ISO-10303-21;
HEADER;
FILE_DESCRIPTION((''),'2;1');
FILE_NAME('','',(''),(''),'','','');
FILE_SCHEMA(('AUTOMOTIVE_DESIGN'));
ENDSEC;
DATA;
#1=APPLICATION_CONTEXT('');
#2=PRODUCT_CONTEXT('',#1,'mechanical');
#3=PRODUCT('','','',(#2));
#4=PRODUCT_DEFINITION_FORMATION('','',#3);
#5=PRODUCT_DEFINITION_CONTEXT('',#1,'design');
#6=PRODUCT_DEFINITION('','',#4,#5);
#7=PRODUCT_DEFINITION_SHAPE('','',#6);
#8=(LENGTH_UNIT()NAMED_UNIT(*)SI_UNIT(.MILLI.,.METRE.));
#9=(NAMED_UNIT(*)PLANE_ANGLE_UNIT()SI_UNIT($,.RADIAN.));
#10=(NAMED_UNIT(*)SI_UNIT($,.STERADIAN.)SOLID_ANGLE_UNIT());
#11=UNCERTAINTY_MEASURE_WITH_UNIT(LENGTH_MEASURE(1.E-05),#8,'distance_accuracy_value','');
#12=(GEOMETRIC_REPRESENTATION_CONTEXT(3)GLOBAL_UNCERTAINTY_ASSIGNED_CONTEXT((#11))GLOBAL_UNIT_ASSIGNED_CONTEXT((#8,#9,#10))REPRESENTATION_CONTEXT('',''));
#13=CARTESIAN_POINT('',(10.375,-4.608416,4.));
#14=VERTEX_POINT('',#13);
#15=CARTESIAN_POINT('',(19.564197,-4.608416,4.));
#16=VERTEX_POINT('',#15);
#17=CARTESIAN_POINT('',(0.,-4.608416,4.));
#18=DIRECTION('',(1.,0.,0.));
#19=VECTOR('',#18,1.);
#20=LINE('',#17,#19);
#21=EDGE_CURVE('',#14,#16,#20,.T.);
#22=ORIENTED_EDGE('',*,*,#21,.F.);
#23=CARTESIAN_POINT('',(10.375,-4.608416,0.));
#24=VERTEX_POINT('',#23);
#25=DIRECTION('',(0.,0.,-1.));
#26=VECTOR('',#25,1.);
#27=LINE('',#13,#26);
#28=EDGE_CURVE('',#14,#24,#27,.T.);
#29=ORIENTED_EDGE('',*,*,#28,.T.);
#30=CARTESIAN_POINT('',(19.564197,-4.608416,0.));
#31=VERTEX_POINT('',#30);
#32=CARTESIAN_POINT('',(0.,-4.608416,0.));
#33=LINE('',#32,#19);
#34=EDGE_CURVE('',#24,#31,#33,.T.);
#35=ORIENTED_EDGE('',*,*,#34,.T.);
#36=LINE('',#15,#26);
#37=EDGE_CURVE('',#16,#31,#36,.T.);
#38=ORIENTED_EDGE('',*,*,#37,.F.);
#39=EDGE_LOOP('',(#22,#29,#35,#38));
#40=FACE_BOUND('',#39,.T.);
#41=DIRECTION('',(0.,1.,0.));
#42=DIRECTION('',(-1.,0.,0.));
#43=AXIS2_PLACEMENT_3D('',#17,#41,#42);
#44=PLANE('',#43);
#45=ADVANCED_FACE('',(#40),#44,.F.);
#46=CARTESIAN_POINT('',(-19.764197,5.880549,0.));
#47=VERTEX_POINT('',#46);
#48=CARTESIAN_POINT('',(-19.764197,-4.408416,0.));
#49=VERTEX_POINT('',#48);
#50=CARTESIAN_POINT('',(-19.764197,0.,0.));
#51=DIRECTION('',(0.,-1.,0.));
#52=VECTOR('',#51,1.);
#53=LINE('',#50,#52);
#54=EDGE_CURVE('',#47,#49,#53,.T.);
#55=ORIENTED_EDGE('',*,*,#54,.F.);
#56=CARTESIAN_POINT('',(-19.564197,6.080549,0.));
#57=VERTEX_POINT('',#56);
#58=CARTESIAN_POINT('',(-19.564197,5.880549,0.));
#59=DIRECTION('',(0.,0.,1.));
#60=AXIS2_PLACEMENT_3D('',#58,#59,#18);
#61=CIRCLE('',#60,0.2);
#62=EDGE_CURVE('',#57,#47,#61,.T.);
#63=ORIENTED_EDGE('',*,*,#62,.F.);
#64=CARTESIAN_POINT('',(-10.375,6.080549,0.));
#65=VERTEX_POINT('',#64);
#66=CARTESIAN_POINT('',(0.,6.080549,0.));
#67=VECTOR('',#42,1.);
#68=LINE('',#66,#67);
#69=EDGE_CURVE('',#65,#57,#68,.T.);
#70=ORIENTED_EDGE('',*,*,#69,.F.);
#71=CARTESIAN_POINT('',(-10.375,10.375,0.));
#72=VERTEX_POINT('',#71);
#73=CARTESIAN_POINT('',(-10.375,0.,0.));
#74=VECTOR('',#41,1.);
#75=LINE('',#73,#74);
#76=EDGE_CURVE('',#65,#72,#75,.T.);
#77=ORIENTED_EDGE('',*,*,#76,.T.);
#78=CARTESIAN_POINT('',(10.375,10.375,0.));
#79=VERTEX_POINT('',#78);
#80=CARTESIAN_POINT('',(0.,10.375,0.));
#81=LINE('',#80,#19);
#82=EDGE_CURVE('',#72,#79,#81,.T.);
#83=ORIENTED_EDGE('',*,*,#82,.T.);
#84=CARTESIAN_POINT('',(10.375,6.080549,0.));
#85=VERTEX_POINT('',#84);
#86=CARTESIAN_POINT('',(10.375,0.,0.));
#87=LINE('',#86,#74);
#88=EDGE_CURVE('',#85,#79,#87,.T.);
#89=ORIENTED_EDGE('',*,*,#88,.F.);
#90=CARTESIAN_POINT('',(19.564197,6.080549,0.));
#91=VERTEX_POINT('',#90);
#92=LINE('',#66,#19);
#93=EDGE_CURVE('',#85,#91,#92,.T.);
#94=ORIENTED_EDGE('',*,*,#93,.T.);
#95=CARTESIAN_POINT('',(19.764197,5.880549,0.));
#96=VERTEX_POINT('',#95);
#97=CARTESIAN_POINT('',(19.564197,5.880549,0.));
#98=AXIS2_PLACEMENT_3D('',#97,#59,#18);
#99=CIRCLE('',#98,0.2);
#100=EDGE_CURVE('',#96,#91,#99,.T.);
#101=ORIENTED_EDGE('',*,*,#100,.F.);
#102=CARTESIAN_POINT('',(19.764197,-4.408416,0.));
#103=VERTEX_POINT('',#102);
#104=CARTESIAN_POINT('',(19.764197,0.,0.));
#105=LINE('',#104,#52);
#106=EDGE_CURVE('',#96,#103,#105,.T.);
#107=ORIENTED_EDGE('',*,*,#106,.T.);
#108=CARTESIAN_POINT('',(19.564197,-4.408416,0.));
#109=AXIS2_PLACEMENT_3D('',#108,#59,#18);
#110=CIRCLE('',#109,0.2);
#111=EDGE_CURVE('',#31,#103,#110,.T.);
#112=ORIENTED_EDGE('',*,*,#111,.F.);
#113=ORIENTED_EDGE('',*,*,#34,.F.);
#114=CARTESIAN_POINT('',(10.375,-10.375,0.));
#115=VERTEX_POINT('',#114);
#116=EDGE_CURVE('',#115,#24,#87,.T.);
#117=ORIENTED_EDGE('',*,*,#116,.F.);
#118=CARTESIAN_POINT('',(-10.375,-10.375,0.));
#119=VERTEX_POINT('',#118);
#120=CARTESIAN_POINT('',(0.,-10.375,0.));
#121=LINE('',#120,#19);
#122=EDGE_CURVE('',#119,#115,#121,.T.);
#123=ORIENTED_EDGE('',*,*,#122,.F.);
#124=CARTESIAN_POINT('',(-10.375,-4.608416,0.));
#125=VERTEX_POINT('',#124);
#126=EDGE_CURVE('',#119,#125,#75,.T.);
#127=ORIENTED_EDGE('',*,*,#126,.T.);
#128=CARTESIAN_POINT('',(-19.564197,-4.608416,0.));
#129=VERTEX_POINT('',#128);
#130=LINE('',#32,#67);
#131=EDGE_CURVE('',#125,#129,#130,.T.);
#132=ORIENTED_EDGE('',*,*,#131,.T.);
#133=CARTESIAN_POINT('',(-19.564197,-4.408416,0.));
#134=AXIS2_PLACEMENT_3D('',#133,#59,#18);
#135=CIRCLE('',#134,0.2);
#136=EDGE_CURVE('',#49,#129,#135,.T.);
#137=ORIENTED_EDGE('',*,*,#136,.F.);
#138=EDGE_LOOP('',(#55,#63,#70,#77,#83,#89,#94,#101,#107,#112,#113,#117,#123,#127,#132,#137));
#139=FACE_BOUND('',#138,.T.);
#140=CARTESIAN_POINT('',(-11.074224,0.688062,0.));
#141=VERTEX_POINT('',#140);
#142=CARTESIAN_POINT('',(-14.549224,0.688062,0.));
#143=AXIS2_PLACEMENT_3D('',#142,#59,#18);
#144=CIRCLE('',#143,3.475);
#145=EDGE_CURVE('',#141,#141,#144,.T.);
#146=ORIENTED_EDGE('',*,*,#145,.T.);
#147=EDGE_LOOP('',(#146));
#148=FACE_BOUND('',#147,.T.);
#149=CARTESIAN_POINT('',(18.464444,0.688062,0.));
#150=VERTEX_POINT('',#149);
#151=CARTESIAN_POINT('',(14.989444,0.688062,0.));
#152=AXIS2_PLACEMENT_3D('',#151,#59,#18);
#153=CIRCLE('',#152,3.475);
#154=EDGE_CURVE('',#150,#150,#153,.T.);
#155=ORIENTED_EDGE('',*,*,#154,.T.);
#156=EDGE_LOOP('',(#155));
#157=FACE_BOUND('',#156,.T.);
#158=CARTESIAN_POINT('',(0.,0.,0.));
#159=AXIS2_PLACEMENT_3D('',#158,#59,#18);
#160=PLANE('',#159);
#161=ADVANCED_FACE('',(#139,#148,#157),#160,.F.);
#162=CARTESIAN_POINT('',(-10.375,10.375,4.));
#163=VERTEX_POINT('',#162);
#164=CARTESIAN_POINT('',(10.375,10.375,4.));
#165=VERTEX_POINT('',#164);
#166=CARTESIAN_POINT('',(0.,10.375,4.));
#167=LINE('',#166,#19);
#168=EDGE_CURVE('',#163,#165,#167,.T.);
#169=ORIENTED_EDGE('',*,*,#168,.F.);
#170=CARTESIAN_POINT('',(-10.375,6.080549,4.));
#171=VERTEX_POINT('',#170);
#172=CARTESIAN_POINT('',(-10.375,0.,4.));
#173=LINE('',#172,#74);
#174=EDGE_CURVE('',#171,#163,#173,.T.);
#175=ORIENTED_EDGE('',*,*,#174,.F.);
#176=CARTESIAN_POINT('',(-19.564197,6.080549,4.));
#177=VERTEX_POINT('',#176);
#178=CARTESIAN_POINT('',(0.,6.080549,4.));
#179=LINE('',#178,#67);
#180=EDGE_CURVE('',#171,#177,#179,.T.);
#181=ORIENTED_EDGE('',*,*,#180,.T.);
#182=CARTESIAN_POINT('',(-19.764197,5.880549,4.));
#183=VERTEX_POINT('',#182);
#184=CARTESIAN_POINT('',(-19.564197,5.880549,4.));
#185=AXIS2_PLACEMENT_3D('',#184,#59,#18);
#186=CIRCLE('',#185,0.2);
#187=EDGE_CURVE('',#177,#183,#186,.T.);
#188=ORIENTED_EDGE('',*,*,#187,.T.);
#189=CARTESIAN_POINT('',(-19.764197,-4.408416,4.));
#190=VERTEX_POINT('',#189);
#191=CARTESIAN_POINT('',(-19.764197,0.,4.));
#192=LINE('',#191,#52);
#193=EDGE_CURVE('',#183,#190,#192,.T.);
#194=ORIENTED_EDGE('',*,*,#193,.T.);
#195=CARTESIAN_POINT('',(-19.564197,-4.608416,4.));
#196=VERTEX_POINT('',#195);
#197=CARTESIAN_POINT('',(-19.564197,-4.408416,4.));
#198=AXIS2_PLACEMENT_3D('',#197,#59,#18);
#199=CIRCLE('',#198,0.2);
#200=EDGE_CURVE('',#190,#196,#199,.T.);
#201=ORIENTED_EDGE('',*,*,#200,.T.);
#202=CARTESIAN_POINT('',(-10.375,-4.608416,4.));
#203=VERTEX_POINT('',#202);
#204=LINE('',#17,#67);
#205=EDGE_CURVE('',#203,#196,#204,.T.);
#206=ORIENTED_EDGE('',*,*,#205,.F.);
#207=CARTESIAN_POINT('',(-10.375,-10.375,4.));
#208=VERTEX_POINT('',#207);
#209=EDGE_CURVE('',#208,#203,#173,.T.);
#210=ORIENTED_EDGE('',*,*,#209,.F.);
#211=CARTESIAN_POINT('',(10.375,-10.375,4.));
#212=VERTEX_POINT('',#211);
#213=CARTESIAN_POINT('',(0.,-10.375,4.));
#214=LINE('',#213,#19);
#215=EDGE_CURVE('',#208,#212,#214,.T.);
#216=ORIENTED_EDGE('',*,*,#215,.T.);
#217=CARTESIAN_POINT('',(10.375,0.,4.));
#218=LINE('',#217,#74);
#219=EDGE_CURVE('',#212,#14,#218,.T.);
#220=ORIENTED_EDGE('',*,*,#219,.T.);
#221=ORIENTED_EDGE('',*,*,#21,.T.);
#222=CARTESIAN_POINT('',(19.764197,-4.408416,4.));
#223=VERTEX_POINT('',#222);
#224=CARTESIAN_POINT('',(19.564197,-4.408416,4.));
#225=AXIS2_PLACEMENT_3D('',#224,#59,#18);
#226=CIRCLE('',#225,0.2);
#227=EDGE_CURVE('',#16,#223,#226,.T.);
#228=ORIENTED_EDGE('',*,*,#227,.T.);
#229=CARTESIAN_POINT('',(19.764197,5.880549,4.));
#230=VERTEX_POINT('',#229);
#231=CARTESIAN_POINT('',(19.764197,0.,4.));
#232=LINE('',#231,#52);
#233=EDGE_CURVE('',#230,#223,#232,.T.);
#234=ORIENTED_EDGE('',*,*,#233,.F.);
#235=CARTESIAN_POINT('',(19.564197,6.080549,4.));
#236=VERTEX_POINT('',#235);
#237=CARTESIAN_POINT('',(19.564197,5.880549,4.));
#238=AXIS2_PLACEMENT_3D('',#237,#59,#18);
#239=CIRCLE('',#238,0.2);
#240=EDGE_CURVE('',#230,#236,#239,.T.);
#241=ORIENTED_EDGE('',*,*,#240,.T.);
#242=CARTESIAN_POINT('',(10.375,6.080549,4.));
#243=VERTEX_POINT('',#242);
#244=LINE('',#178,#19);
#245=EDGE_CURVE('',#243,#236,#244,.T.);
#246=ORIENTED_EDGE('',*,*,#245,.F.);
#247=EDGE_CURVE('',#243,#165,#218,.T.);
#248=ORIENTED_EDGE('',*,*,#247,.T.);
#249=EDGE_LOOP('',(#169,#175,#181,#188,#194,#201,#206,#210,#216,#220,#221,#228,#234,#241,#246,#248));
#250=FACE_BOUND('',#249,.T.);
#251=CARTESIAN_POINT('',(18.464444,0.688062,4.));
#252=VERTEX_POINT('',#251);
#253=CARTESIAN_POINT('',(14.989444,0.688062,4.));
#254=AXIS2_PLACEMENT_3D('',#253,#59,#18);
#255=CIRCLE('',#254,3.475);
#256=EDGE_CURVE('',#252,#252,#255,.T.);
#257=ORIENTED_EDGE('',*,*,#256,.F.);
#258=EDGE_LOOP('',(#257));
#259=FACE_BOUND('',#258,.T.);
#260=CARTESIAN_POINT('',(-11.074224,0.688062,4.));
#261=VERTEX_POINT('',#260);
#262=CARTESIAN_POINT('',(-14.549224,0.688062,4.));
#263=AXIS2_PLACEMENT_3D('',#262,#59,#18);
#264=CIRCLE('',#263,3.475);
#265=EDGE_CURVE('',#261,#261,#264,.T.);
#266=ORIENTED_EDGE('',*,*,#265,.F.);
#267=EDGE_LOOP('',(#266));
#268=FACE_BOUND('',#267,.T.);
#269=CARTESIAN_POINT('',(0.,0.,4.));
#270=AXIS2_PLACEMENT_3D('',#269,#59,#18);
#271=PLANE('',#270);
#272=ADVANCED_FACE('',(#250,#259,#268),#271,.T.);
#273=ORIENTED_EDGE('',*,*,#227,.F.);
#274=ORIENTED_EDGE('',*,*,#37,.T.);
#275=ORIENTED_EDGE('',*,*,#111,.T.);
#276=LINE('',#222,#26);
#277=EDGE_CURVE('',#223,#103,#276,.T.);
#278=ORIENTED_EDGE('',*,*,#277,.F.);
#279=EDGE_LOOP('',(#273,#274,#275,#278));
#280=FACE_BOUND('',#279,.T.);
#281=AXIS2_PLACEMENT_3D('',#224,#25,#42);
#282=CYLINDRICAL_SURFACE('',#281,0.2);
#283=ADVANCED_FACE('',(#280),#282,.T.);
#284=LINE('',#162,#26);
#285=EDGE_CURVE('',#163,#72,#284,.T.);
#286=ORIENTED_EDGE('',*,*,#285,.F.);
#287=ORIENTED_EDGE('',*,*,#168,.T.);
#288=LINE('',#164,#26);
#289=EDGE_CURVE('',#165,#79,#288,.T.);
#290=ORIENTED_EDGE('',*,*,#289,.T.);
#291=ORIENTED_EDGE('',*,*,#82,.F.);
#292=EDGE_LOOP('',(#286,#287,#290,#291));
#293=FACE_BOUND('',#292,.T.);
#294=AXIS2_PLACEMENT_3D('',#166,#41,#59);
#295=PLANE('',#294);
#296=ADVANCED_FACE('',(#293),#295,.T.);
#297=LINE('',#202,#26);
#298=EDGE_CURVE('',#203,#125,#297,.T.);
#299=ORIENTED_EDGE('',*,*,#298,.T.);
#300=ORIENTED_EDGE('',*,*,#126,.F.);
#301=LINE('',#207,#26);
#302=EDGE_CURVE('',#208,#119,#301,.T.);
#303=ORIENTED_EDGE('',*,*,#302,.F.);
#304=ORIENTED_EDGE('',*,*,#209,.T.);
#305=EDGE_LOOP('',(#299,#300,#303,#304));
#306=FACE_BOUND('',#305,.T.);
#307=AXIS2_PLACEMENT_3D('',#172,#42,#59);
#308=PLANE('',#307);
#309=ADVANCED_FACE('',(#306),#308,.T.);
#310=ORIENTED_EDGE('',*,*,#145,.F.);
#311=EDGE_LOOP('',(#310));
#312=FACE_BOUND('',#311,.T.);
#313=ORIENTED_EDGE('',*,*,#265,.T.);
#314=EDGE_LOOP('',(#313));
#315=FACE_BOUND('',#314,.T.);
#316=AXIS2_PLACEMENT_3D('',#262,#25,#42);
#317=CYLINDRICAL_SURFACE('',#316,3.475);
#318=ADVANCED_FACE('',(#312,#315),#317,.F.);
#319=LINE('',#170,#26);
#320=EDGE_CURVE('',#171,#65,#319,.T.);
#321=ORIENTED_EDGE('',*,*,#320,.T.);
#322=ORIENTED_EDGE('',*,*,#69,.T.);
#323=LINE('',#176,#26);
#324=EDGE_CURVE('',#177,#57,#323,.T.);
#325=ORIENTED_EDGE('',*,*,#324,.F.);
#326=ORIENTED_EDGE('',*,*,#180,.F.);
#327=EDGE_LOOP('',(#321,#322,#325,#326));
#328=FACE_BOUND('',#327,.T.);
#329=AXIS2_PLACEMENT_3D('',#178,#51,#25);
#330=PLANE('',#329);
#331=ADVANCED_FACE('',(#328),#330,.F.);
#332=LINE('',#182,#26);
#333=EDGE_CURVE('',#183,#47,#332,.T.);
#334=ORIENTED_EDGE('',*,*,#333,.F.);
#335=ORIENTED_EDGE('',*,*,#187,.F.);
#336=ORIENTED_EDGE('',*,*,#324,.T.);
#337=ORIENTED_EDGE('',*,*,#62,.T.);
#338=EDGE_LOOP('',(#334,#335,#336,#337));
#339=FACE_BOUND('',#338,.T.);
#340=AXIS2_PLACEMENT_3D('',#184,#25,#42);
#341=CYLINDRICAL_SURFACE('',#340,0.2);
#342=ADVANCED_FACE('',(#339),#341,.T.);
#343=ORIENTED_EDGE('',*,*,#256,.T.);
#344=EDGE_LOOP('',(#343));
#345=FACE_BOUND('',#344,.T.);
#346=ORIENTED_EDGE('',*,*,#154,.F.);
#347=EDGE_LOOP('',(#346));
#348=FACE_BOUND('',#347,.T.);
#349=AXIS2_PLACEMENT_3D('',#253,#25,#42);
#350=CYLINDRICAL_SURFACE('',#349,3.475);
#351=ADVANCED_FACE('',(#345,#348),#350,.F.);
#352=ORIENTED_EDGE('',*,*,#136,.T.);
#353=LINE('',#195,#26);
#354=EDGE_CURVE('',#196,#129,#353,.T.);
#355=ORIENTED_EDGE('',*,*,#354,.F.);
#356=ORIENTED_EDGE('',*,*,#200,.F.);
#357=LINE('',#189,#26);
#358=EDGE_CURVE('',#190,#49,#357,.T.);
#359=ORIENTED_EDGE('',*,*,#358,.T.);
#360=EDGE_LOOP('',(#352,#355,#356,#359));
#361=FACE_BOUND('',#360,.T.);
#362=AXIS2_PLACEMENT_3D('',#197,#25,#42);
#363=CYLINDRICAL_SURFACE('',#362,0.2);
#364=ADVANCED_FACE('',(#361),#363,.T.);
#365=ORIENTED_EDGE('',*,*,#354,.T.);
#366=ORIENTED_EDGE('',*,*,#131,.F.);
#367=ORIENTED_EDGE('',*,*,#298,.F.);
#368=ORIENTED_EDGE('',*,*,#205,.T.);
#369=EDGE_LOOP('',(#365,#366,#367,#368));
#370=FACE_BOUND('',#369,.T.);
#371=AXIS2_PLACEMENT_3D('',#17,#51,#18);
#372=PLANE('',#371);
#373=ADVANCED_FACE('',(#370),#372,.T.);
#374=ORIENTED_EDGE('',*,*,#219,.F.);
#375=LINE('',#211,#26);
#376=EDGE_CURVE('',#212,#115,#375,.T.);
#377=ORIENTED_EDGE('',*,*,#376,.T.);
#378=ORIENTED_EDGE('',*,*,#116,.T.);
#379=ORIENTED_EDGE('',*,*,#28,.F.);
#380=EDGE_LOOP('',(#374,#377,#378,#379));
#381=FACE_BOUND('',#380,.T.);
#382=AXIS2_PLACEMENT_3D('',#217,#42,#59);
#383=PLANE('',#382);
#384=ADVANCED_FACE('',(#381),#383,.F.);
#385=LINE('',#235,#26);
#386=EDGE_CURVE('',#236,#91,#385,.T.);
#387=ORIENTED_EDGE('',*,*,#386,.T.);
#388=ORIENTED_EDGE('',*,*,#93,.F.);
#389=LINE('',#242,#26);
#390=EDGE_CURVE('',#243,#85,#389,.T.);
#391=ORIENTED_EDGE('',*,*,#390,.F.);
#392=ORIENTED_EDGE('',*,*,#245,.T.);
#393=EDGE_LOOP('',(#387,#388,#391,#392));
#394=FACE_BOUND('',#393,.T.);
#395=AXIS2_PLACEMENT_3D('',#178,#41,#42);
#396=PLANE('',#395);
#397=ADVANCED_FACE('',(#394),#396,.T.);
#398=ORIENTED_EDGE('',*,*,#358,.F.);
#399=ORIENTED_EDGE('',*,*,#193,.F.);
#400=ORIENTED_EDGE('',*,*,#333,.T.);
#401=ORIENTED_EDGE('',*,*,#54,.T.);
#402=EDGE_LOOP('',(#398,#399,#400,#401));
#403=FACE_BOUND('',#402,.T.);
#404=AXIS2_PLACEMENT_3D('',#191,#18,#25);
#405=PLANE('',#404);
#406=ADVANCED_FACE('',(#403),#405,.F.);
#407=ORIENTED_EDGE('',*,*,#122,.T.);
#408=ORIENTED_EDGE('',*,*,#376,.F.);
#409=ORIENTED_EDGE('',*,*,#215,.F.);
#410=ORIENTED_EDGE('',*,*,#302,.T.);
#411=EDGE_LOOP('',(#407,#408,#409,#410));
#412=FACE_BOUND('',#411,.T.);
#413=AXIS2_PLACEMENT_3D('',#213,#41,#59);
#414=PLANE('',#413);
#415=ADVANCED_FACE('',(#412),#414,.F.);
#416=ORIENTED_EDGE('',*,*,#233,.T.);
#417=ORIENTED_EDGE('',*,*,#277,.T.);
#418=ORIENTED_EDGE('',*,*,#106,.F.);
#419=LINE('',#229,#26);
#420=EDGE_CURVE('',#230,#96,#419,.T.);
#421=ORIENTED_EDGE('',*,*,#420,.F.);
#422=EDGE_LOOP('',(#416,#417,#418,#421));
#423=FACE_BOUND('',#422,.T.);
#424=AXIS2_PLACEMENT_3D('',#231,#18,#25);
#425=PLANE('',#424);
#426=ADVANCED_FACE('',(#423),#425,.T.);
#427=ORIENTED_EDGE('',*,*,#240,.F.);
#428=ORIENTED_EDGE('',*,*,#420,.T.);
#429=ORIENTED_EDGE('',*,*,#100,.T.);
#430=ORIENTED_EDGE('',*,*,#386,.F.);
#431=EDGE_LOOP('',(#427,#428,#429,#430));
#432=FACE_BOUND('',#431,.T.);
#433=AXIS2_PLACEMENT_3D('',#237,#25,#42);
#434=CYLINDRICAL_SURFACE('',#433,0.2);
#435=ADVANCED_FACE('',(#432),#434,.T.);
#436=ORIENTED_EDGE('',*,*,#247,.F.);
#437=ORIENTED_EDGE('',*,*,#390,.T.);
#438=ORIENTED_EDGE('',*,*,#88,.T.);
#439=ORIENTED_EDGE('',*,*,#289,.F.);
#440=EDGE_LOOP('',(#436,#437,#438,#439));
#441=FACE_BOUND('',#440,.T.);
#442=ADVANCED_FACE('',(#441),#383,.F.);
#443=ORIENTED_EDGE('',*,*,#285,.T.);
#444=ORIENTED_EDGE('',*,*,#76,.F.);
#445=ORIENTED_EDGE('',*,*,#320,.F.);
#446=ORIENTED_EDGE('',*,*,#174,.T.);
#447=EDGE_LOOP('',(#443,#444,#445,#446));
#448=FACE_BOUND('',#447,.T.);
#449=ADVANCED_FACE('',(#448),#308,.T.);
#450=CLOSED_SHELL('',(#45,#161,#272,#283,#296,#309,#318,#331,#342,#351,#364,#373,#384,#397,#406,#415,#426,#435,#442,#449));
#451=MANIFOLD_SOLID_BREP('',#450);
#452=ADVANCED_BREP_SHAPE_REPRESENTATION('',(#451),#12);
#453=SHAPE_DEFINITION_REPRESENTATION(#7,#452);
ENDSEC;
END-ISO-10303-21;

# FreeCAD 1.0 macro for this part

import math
import FreeCAD as App
import Part
import Sketcher

V = App.Vector
Q = App.Units.Quantity

doc = App.newDocument("Part")
body = doc.addObject("PartDesign::Body", "Body")

sketch1 = body.newObject("Sketcher::SketchObject", "Sketch")
sketch1.AttachmentSupport = (doc.getObject("XY_Plane"), [""])
sketch1.MapMode = "FlatFace"
sketch1.addGeometry([
    Part.LineSegment(V(-10.38, 6.08, 0), V(-19.56, 6.08, 0)),
    Part.ArcOfCircle(Part.Circle(V(-19.56, 5.88, 0), V(0, 0, 1), 0.2), math.radians(90), math.radians(180)),
    Part.LineSegment(V(-19.76, 5.88, 0), V(-19.76, -4.41, 0)),
    Part.ArcOfCircle(Part.Circle(V(-19.56, -4.41, 0), V(0, 0, 1), 0.2), math.radians(180), math.radians(270)),
    Part.LineSegment(V(-19.56, -4.61, 0), V(-10.38, -4.61, 0)),
    Part.LineSegment(V(-10.38, -4.61, 0), V(-10.38, -10.38, 0)),
    Part.LineSegment(V(-10.38, -10.38, 0), V(10.38, -10.38, 0)),
    Part.LineSegment(V(10.38, -10.38, 0), V(10.38, -4.61, 0)),
    Part.LineSegment(V(10.38, -4.61, 0), V(19.56, -4.61, 0)),
    Part.ArcOfCircle(Part.Circle(V(19.56, -4.41, 0), V(0, 0, 1), 0.2), math.radians(-90), math.radians(0)),
    Part.LineSegment(V(19.76, -4.41, 0), V(19.76, 5.88, 0)),
    Part.ArcOfCircle(Part.Circle(V(19.56, 5.88, 0), V(0, 0, 1), 0.2), math.radians(0), math.radians(90)),
    Part.LineSegment(V(19.56, 6.08, 0), V(10.38, 6.08, 0)),
    Part.LineSegment(V(10.38, 6.08, 0), V(10.38, 10.38, 0)),
    Part.LineSegment(V(10.38, 10.38, 0), V(-10.38, 10.38, 0)),
    Part.LineSegment(V(-10.38, 10.38, 0), V(-10.38, 6.08, 0)),
    Part.Circle(V(-14.55, 0.69, 0), V(0, 0, 1), 3.48),
    Part.Circle(V(14.99, 0.69, 0), V(0, 0, 1), 3.48),
], False)
sketch1.addConstraint([
    Sketcher.Constraint("Tangent", 0, 2, 1, 1),
    Sketcher.Constraint("Tangent", 1, 2, 2, 1),
    Sketcher.Constraint("Tangent", 2, 2, 3, 1),
    Sketcher.Constraint("Tangent", 3, 2, 4, 1),
    Sketcher.Constraint("Coincident", 4, 2, 5, 1),
    Sketcher.Constraint("Coincident", 5, 2, 6, 1),
    Sketcher.Constraint("Coincident", 6, 2, 7, 1),
    Sketcher.Constraint("Coincident", 7, 2, 8, 1),
    Sketcher.Constraint("Tangent", 8, 2, 9, 1),
    Sketcher.Constraint("Tangent", 9, 2, 10, 1),
    Sketcher.Constraint("Tangent", 10, 2, 11, 1),
    Sketcher.Constraint("Tangent", 11, 2, 12, 1),
    Sketcher.Constraint("Coincident", 12, 2, 13, 1),
    Sketcher.Constraint("Coincident", 13, 2, 14, 1),
    Sketcher.Constraint("Coincident", 14, 2, 15, 1),
    Sketcher.Constraint("Coincident", 15, 2, 0, 1),
    Sketcher.Constraint("Horizontal", 0),
    Sketcher.Constraint("Vertical", 2),
    Sketcher.Constraint("Horizontal", 4),
    Sketcher.Constraint("Vertical", 5),
    Sketcher.Constraint("Horizontal", 6),
    Sketcher.Constraint("Vertical", 7),
    Sketcher.Constraint("Horizontal", 8),
    Sketcher.Constraint("Vertical", 10),
    Sketcher.Constraint("Horizontal", 12),
    Sketcher.Constraint("Vertical", 13),
    Sketcher.Constraint("Horizontal", 14),
    Sketcher.Constraint("Vertical", 15),
    Sketcher.Constraint("Equal", 1, 3),
    Sketcher.Constraint("Equal", 3, 9),
    Sketcher.Constraint("Equal", 9, 11),
    Sketcher.Constraint("Equal", 16, 17),
    Sketcher.Constraint("Symmetric", 5, 2, 13, 2, -1, 1),
    Sketcher.Constraint("Symmetric", 3, 3, 9, 3, -2),
    Sketcher.Constraint("Symmetric", 12, 2, 15, 2, -2),
    Sketcher.Constraint("Horizontal", 16, 3, 17, 3),
    Sketcher.Constraint("Vertical", 7, 2, 12, 2),
    Sketcher.Constraint("Radius", 1, Q("0.2 mm")),
    Sketcher.Constraint("Diameter", 16, Q("6.95 mm")),
    Sketcher.Constraint("DistanceX", 6, 1, 6, 2, Q("20.75 mm")),
    Sketcher.Constraint("DistanceY", 5, 2, -1, 1, Q("10.375 mm")),
    Sketcher.Constraint("DistanceY", 13, 1, 13, 2, Q("4.294451 mm")),
    Sketcher.Constraint("DistanceX", 0, 2, 0, 1, Q("9.189197 mm")),
    Sketcher.Constraint("DistanceY", 2, 2, 2, 1, Q("10.288965 mm")),
    Sketcher.Constraint("DistanceY", 3, 3, 16, 3, Q("5.096478 mm")),
    Sketcher.Constraint("DistanceX", 16, 3, 9, 3, Q("34.113421 mm")),
    Sketcher.Constraint("DistanceX", 3, 3, 17, 3, Q("34.553641 mm")),
])
pad1 = body.newObject("PartDesign::Pad", "Pad")
pad1.Profile = sketch1
pad1.Length = 4

doc.recompute()
